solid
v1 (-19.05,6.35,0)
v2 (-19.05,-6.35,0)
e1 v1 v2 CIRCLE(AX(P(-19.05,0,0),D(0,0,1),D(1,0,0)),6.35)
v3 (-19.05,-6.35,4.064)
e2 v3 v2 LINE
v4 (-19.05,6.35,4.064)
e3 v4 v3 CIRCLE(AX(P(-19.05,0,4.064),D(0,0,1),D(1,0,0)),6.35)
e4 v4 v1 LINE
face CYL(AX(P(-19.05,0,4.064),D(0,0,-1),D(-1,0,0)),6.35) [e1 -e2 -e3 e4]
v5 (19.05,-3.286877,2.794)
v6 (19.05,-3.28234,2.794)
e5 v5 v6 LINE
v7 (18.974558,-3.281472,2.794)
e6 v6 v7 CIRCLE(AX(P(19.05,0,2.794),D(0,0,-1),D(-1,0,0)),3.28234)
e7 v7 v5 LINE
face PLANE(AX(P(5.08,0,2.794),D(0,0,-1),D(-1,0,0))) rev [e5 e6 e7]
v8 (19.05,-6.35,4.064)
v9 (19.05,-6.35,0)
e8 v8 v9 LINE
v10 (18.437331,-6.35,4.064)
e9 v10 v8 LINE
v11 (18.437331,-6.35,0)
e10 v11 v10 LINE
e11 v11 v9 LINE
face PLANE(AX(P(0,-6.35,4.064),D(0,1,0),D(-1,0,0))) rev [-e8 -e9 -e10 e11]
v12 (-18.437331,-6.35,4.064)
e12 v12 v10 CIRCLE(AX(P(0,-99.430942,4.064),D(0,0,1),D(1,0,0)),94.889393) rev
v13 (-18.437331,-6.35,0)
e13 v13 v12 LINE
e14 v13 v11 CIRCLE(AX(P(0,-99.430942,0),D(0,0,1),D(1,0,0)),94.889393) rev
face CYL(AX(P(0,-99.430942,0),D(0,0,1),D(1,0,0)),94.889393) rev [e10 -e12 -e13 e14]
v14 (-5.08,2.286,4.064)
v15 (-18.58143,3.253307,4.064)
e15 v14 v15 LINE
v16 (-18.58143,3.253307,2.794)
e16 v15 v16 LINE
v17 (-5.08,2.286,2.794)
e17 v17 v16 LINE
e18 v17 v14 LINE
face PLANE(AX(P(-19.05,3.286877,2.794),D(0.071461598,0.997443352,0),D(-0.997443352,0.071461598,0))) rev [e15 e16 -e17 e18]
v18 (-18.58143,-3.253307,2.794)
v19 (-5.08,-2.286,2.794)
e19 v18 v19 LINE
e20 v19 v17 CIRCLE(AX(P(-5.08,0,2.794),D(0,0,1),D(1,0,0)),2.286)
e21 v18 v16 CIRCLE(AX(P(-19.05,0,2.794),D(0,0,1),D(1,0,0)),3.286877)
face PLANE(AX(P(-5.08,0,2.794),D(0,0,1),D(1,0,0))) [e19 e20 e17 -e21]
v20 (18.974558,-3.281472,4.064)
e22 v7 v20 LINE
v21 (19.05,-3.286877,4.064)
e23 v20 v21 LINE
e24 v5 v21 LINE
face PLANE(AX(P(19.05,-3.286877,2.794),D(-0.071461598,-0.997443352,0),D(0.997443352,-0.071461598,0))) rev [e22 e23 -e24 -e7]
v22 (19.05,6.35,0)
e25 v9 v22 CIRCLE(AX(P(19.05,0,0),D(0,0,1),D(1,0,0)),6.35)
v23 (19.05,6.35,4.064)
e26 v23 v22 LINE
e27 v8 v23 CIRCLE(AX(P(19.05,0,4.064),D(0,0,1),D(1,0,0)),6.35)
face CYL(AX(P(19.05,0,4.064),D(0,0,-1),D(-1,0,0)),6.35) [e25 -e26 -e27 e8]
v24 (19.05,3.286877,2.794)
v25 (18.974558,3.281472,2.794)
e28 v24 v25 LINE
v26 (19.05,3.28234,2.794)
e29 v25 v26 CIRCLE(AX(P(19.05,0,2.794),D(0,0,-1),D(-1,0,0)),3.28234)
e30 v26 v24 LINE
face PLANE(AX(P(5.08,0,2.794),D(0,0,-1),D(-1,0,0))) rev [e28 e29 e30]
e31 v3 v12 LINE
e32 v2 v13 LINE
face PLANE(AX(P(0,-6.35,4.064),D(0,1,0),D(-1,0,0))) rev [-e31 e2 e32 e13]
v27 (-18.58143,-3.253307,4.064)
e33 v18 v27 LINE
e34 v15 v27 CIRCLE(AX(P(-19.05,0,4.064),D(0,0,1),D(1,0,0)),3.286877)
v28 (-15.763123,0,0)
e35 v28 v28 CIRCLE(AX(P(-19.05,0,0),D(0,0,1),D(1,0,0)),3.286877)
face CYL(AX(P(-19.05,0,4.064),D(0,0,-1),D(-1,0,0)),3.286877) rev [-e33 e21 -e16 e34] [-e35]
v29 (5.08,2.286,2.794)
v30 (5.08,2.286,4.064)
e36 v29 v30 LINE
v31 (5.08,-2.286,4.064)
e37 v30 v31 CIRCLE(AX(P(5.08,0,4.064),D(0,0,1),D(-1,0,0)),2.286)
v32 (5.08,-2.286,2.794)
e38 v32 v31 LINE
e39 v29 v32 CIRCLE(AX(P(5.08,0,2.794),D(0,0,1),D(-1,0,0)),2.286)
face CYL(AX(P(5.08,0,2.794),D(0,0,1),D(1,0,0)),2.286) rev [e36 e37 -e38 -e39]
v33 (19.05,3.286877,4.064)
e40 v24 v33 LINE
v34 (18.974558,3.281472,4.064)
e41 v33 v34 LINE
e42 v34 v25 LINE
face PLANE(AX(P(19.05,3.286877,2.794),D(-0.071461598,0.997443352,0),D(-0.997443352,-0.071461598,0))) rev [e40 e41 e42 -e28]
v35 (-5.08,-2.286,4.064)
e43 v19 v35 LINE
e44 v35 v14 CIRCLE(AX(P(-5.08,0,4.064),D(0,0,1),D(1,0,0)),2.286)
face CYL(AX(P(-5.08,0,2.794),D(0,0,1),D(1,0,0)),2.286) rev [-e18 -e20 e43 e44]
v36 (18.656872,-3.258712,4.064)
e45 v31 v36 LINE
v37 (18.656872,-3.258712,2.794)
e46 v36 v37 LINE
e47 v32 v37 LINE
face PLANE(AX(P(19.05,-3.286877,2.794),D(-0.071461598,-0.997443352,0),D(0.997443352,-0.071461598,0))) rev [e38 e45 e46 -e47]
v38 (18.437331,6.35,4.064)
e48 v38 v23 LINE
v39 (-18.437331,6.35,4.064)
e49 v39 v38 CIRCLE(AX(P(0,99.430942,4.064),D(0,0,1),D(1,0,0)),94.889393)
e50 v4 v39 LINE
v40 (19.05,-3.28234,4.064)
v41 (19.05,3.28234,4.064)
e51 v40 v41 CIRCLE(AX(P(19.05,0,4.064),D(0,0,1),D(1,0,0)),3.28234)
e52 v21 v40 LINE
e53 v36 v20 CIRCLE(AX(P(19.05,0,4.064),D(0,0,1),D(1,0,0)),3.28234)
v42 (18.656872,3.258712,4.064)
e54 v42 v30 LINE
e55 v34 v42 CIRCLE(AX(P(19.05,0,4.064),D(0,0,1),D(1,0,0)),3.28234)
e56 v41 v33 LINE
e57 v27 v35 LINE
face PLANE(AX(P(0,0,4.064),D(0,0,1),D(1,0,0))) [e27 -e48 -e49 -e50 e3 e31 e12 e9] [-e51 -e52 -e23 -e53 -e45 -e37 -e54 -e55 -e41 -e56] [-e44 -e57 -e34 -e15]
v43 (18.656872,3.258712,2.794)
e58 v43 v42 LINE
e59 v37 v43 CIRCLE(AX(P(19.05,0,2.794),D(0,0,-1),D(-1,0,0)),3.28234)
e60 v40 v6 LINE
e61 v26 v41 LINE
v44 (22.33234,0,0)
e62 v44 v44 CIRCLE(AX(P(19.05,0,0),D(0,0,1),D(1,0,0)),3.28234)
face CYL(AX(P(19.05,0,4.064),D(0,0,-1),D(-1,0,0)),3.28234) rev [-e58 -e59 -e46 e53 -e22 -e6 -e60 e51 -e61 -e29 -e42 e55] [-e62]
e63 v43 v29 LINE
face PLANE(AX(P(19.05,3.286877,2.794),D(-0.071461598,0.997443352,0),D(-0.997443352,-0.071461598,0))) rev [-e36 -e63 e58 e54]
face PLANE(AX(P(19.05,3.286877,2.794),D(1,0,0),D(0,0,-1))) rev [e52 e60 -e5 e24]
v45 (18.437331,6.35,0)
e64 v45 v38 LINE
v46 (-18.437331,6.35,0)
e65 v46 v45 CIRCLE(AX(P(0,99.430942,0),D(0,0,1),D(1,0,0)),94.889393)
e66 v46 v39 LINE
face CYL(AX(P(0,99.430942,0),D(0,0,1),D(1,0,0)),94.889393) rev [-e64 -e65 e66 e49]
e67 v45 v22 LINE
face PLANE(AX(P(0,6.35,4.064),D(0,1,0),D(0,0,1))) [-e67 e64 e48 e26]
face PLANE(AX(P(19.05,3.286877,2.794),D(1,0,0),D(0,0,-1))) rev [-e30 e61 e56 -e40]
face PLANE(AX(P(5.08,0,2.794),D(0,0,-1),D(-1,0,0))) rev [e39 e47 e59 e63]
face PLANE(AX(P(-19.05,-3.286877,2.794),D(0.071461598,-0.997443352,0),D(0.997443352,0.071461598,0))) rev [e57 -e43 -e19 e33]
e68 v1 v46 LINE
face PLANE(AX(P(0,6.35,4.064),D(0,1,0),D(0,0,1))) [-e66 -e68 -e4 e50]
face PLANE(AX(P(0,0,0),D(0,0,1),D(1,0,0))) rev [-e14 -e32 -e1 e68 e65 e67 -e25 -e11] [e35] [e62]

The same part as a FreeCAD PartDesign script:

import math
import FreeCAD as App
import Part
import Sketcher
Q = App.Units.Quantity

doc = App.newDocument("Part")
params = doc.addObject("Spreadsheet::Sheet", "Params")
for row, (alias, value) in enumerate([
    ("sketch1_radius", "0.25 in"),
    ("sketch1_width", "1.5 in"),
    ("pad1_length", "0.16 in"),
    ("sketch2_radius", "0.09 in"),
    ("pocket1_length", "0.05 in"),
], start=1):
    params.set(f"A{row}", alias)
    params.set(f"B{row}", "=" + value)
    params.setAlias(f"B{row}", alias)

body = doc.addObject("PartDesign::Body", "Body")

sketch1 = body.newObject("Sketcher::SketchObject", "Sketch")
sketch1.AttachmentSupport = (doc.getObject("XY_Plane"), [""])
sketch1.MapMode = "FlatFace"
sketch1.addGeometry([
    Part.LineSegment(App.Vector(19.1, 6.3, 0), App.Vector(-19.1, 6.3, 0)),
    Part.ArcOfCircle(Part.Circle(App.Vector(-19.1, 0, 0), App.Vector(0, 0, 1), 6.3), math.radians(90), math.radians(270)),
    Part.LineSegment(App.Vector(-19.1, -6.3, 0), App.Vector(19.1, -6.3, 0)),
    Part.ArcOfCircle(Part.Circle(App.Vector(19.1, 0, 0), App.Vector(0, 0, 1), 6.3), math.radians(-90), math.radians(90)),
    Part.Circle(App.Vector(19.1, 0, 0), App.Vector(0, 0, 1), 3.3),
    Part.Circle(App.Vector(-19.1, 0, 0), App.Vector(0, 0, 1), 3.3),
], False)
sketch1.addConstraint([
    Sketcher.Constraint("Tangent", 0, 2, 1, 1),
    Sketcher.Constraint("Tangent", 1, 2, 2, 1),
    Sketcher.Constraint("Tangent", 2, 2, 3, 1),
    Sketcher.Constraint("Tangent", 3, 2, 0, 1),
    Sketcher.Constraint("Horizontal", 0),
    Sketcher.Constraint("Horizontal", 2),
    Sketcher.Constraint("Coincident", 4, 3, 3, 3),
    Sketcher.Constraint("Coincident", 5, 3, 1, 3),
    Sketcher.Constraint("Symmetric", 1, 3, 3, 3, -1, 1),
    Sketcher.Constraint("Radius", 1, Q("0.25 in")),
    Sketcher.Constraint("DistanceX", 0, 2, 0, 1, Q("1.5 in")),
    Sketcher.Constraint("Diameter", 4, Q("6.564679 mm")),
    Sketcher.Constraint("Diameter", 5, Q("6.573755 mm")),
])
sketch1.setExpression("Constraints[9]", "Params.sketch1_radius")
sketch1.setExpression("Constraints[10]", "Params.sketch1_width")
pad1 = body.newObject("PartDesign::Pad", "Pad")
pad1.Profile = sketch1
pad1.setExpression("Length", "Params.pad1_length")

sketch2 = body.newObject("Sketcher::SketchObject", "Sketch001")
sketch2.AttachmentSupport = (doc.getObject("XY_Plane"), [""])
sketch2.MapMode = "FlatFace"
sketch2.AttachmentOffset = App.Placement(App.Vector(0, 0, 0.16 * 25.4), App.Rotation())
sketch2.addGeometry([
    Part.LineSegment(App.Vector(-5.1, 2.3, 0), App.Vector(-19.1, 3.3, 0)),
    Part.LineSegment(App.Vector(-19.1, 3.3, 0), App.Vector(-19.1, -3.3, 0)),
    Part.LineSegment(App.Vector(-19.1, -3.3, 0), App.Vector(-5.1, -2.3, 0)),
    Part.ArcOfCircle(Part.Circle(App.Vector(-5.1, 0, 0), App.Vector(0, 0, 1), 2.3), math.radians(-90), math.radians(90)),
    Part.LineSegment(App.Vector(5.1, -2.3, 0), App.Vector(19.1, -3.3, 0)),
    Part.LineSegment(App.Vector(19.1, -3.3, 0), App.Vector(19.1, 3.3, 0)),
    Part.LineSegment(App.Vector(19.1, 3.3, 0), App.Vector(5.1, 2.3, 0)),
    Part.ArcOfCircle(Part.Circle(App.Vector(5.1, 0, 0), App.Vector(0, 0, 1), 2.3), math.radians(90), math.radians(270)),
], False)
sketch2.addConstraint([
    Sketcher.Constraint("Coincident", 0, 2, 1, 1),
    Sketcher.Constraint("Coincident", 1, 2, 2, 1),
    Sketcher.Constraint("Coincident", 2, 2, 3, 1),
    Sketcher.Constraint("Coincident", 3, 2, 0, 1),
    Sketcher.Constraint("Coincident", 4, 2, 5, 1),
    Sketcher.Constraint("Coincident", 5, 2, 6, 1),
    Sketcher.Constraint("Coincident", 6, 2, 7, 1),
    Sketcher.Constraint("Coincident", 7, 2, 4, 1),
    Sketcher.Constraint("Vertical", 1),
    Sketcher.Constraint("Vertical", 5),
    Sketcher.Constraint("Equal", 3, 7),
    Sketcher.Constraint("Symmetric", 3, 3, 7, 3, -1, 1),
    Sketcher.Constraint("Symmetric", 0, 2, 4, 2, -1, 1),
    Sketcher.Constraint("Symmetric", 3, 2, 6, 2, -2),
    Sketcher.Constraint("Parallel", 0, 4),
    Sketcher.Constraint("Parallel", 2, 6),
    Sketcher.Constraint("Horizontal", 1, 2, 4, 2),
    Sketcher.Constraint("Horizontal", 0, 2, 5, 2),
    Sketcher.Constraint("Vertical", 3, 3, 2, 2),
    Sketcher.Constraint("Radius", 3, Q("0.09 in")),
    Sketcher.Constraint("DistanceX", 3, 3, -1, 1, Q("0.2 in")),
    Sketcher.Constraint("DistanceX", 1, 2, 4, 2, Q("1.5 in")),
    Sketcher.Constraint("DistanceY", 1, 2, 1, 1, Q("6.573755 mm")),
])
sketch2.setExpression("Constraints[19]", "Params.sketch2_radius")
pocket1 = body.newObject("PartDesign::Pocket", "Pocket")
pocket1.Profile = sketch2
pocket1.setExpression("Length", "Params.pocket1_length")

sketch3 = body.newObject("Sketcher::SketchObject", "Sketch002")
sketch3.AttachmentSupport = (doc.getObject("XY_Plane"), [""])
sketch3.MapMode = "FlatFace"
sketch3.AttachmentOffset = App.Placement(App.Vector(0, 0, 0.16 * 25.4), App.Rotation())
sketch3.addGeometry([
    Part.ArcOfCircle(Part.Circle(App.Vector(0, 99.430942, 0), App.Vector(0, 0, 1), 94.889393), math.radians(-78.795967), math.radians(0)),
    Part.ArcOfCircle(Part.Circle(App.Vector(0, 99.430942, 0), App.Vector(0, 0, 1), 94.889393), math.radians(0), math.radians(258.795967)),
    Part.ArcOfCircle(Part.Circle(App.Vector(0.000016, 99.431023, 0), App.Vector(0, 0, 1), 94.889476), math.radians(-101.204032), math.radians(-100.845882)),
    Part.ArcOfCircle(Part.Circle(App.Vector(0, 99.430942, 0), App.Vector(0, 0, 1), 94.889393), math.radians(-100.845882), math.radians(-79.154118)),
    Part.ArcOfCircle(Part.Circle(App.Vector(0.000002, 99.430931, 0), App.Vector(0, 0, 1), 94.889382), math.radians(-79.154118), math.radians(-78.795967)),
    Part.ArcOfCircle(Part.Circle(App.Vector(-0.000013, -99.431009, 0), App.Vector(0, 0, 1), 94.889462), math.radians(78.795968), math.radians(79.154118)),
    Part.ArcOfCircle(Part.Circle(App.Vector(0, -99.430942, 0), App.Vector(0, 0, 1), 94.889393), math.radians(79.154118), math.radians(100.845882)),
    Part.ArcOfCircle(Part.Circle(App.Vector(0.000018, -99.431035, 0), App.Vector(0, 0, 1), 94.889488), math.radians(100.845882), math.radians(101.204032)),
    Part.ArcOfCircle(Part.Circle(App.Vector(0, -99.430942, 0), App.Vector(0, 0, 1), 94.889393), math.radians(101.204033), math.radians(360)),
    Part.ArcOfCircle(Part.Circle(App.Vector(0, -99.430942, 0), App.Vector(0, 0, 1), 94.889393), math.radians(0), math.radians(78.795967)),
], False)
sketch3.addConstraint([
    Sketcher.Constraint("Coincident", 0, 2, 1, 1),
    Sketcher.Constraint("Coincident", 1, 2, 2, 1),
    Sketcher.Constraint("Coincident", 2, 2, 3, 1),
    Sketcher.Constraint("Coincident", 3, 2, 4, 1),
    Sketcher.Constraint("Coincident", 4, 2, 0, 1),
    Sketcher.Constraint("Coincident", 5, 2, 6, 1),
    Sketcher.Constraint("Coincident", 6, 2, 7, 1),
    Sketcher.Constraint("Coincident", 7, 2, 8, 1),
    Sketcher.Constraint("Coincident", 8, 2, 9, 1),
    Sketcher.Constraint("Coincident", 9, 2, 5, 1),
    Sketcher.Constraint("Coincident", 1, 3, 0, 3),
    Sketcher.Constraint("Coincident", 3, 3, 0, 3),
    Sketcher.Constraint("Coincident", 8, 3, 6, 3),
    Sketcher.Constraint("Coincident", 9, 3, 6, 3),
    Sketcher.Constraint("PointOnObject", 0, 3, -2),
    Sketcher.Constraint("PointOnObject", 6, 3, -2),
    Sketcher.Constraint("DistanceY", 7, 2, 1, 2, Q("0.5 in")),
    Sketcher.Constraint("DistanceY", 9, 2, 4, 2, Q("0.5 in")),
    Sketcher.Constraint("DistanceY", -1, 1, 1, 2, Q("0.25 in")),
    Sketcher.Constraint("DistanceY", -1, 1, 4, 2, Q("0.25 in")),
    Sketcher.Constraint("Radius", 4, Q("94.889382 mm")),
    Sketcher.Constraint("Radius", 5, Q("94.889462 mm")),
    Sketcher.Constraint("Radius", 7, Q("94.889488 mm")),
    Sketcher.Constraint("Radius", 0, Q("94.889393 mm")),
    Sketcher.Constraint("Radius", 2, Q("94.889476 mm")),
    Sketcher.Constraint("Radius", 3, Q("94.889393 mm")),
    Sketcher.Constraint("Radius", 6, Q("94.889393 mm")),
    Sketcher.Constraint("Radius", 8, Q("94.889393 mm")),
    Sketcher.Constraint("DistanceY", -1, 1, 4, 3, Q("99.430931 mm")),
    Sketcher.Constraint("DistanceY", 5, 3, -1, 1, Q("99.431009 mm")),
    Sketcher.Constraint("DistanceY", -1, 1, 2, 2, Q("6.236569 mm")),
    Sketcher.Constraint("DistanceY", -1, 1, 3, 2, Q("6.236569 mm")),
    Sketcher.Constraint("DistanceY", 5, 2, -1, 1, Q("6.236569 mm")),
    Sketcher.Constraint("DistanceY", 6, 2, -1, 1, Q("6.236569 mm")),
    Sketcher.Constraint("DistanceY", -1, 1, 0, 2, Q("99.430942 mm")),
    Sketcher.Constraint("DistanceY", 8, 2, -1, 1, Q("99.430942 mm")),
])
pocket2 = body.newObject("PartDesign::Pocket", "Pocket001")
pocket2.Profile = sketch3
pocket2.Type = "ThroughAll"

doc.recompute()
